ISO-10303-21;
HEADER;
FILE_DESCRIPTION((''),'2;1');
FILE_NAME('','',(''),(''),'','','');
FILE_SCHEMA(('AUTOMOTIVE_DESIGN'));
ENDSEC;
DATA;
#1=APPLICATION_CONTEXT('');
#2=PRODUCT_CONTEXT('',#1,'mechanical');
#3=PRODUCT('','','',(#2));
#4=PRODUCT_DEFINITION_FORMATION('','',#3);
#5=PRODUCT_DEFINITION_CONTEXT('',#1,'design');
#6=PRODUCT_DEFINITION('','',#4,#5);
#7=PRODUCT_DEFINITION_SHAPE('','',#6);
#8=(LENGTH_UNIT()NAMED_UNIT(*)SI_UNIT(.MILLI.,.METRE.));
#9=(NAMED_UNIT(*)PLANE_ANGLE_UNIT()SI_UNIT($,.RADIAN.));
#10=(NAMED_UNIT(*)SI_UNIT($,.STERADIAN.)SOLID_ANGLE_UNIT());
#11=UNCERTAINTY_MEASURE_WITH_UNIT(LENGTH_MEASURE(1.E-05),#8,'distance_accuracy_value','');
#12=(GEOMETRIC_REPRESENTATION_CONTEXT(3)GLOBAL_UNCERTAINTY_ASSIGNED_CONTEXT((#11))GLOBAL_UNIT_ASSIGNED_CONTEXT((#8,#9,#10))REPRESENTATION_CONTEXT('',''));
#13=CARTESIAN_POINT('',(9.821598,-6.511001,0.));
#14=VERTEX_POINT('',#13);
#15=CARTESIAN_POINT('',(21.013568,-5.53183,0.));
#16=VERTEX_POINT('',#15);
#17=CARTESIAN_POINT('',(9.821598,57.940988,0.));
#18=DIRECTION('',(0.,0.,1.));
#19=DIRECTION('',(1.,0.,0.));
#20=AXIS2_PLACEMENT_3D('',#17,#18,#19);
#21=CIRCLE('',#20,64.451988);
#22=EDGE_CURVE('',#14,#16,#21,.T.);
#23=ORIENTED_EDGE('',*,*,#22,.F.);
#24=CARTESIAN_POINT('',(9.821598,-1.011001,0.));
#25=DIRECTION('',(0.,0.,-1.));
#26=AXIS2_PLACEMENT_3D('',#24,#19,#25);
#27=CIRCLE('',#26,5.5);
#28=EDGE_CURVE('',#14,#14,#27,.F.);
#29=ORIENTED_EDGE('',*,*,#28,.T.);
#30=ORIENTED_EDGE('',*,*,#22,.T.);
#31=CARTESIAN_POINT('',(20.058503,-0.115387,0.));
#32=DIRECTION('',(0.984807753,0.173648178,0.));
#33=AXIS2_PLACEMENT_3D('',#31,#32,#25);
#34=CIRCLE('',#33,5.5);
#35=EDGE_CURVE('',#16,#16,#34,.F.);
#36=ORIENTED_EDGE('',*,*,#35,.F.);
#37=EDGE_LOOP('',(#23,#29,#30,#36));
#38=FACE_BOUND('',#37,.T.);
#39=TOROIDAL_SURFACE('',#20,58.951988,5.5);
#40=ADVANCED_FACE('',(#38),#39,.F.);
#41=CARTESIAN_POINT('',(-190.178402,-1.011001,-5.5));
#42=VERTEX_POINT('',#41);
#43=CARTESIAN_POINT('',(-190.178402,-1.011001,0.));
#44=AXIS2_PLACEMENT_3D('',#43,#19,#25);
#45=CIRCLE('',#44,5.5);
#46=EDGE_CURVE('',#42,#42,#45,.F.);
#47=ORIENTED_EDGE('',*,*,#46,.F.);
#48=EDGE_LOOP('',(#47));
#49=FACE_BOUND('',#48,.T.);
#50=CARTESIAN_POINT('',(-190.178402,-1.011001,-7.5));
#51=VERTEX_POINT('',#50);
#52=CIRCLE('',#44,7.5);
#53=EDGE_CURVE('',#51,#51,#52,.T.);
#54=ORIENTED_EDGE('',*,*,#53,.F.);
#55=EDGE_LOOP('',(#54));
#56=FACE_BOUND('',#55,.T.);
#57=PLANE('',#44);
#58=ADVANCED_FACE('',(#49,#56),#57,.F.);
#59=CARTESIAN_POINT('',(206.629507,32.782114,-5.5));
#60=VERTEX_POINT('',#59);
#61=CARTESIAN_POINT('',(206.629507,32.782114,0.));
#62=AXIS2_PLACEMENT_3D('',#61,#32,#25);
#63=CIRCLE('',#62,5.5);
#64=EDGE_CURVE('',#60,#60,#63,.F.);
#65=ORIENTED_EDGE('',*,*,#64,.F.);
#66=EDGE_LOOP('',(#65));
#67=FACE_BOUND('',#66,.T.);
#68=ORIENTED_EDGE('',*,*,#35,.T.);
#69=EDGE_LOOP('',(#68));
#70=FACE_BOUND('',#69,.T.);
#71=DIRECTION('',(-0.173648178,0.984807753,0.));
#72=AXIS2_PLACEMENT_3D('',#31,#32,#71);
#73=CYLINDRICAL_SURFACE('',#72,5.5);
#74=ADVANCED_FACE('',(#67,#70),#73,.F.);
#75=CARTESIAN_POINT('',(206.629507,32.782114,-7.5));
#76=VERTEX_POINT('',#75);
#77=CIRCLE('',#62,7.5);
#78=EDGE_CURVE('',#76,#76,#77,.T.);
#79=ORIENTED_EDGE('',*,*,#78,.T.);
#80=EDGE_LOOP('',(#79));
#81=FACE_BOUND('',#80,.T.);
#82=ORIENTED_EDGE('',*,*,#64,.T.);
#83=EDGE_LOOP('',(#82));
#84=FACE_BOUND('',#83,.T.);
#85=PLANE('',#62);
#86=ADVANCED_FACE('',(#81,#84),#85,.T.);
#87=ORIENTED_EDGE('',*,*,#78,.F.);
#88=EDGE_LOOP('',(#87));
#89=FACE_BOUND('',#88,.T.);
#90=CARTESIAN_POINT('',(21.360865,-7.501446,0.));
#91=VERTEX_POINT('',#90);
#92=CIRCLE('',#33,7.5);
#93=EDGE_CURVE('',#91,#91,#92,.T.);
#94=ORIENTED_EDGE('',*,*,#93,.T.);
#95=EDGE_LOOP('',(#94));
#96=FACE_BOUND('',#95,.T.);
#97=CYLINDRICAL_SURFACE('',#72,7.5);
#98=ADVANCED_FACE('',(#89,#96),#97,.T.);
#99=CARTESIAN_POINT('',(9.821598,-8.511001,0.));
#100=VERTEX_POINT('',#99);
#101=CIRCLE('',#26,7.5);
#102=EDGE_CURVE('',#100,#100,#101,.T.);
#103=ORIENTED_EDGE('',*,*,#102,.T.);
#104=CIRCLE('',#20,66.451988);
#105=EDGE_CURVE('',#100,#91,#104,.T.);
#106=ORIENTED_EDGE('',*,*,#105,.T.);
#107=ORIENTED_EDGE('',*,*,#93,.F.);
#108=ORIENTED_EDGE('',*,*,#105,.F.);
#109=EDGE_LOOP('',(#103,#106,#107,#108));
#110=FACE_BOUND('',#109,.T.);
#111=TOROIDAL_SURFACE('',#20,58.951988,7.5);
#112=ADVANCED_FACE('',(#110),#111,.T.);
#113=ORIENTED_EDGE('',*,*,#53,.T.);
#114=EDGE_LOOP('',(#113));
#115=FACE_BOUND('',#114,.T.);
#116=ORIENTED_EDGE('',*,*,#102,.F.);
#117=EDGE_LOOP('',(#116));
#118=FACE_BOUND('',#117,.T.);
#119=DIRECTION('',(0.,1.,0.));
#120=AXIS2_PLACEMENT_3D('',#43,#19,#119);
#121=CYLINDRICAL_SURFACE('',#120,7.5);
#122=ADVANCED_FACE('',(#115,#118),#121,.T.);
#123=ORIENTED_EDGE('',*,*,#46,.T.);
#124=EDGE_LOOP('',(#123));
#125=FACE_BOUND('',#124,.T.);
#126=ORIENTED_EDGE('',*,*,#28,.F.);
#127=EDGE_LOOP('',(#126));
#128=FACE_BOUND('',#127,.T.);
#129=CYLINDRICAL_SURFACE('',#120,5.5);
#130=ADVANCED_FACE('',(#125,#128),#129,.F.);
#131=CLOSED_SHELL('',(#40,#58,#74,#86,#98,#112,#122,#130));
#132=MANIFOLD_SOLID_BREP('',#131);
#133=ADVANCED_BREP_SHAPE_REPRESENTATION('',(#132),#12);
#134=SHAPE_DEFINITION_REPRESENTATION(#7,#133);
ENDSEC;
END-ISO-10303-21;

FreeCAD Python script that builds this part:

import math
import FreeCAD as App
import Part
import Sketcher
from FreeCAD import Vector
Q = App.Units.Quantity

doc = App.newDocument("Part")
body = doc.addObject("PartDesign::Body", "Body")

# Sketch on YZ plane
sketch1 = body.newObject("Sketcher::SketchObject", "Sketch")
sketch1.AttachmentSupport = (doc.getObject("YZ_Plane"), [""])
sketch1.MapMode = "FlatFace"
sketch1.AttachmentOffset = App.Placement(Vector(0, 0, -190.178402), App.Rotation())
sketch1.addGeometry([
    Part.Circle(Vector(-1, 0, 0), Vector(0, 0, 1), 8),
    Part.Circle(Vector(-1, 0, 0), Vector(0, 0, 1), 6),
], False)
sketch1.addConstraint([
    Sketcher.Constraint("Coincident", 1, 3, 0, 3),
    Sketcher.Constraint("PointOnObject", 0, 3, -1),
    Sketcher.Constraint("Diameter", 0, 15.0),
    Sketcher.Constraint("Diameter", 1, 11.0),
    Sketcher.Constraint("DistanceX", 0, 3, -1, 1, 1.011001),
])

# Sketch on XY plane
sketch2 = body.newObject("Sketcher::SketchObject", "Sketch001")
sketch2.AttachmentSupport = (doc.getObject("XY_Plane"), [""])
sketch2.MapMode = "FlatFace"
sketch2.addGeometry([
    Part.LineSegment(Vector(-190, -3, 0), Vector(10, -3, 0)),
    Part.ArcOfCircle(Part.Circle(Vector(10, 58, 0), Vector(0, 0, 1), 60), math.radians(-90), math.radians(-80)),
    Part.LineSegment(Vector(20, -2, 0), Vector(207, 31, 0)),
], False)
sketch2.addConstraint([
    Sketcher.Constraint("Tangent", 0, 2, 1, 1),
    Sketcher.Constraint("Tangent", 1, 2, 2, 1),
    Sketcher.Constraint("Horizontal", 0),
    Sketcher.Constraint("DistanceX", 0, 1, 0, 2, 200.0),
    Sketcher.Constraint("Angle", 2, Q("10 deg")),
    Sketcher.Constraint("Radius", 1, 60.451847),
    Sketcher.Constraint("DistanceY", 1, 2, 2, 2, 32.897502),
    Sketcher.Constraint("DistanceY", 0, 1, -1, 1, 2.510859),
    Sketcher.Constraint("DistanceX", -1, 1, 1, 2, 20.318951),
])
doc.recompute()

additivepipe = body.newObject("PartDesign::AdditivePipe", "AdditivePipe")
additivepipe.Profile = sketch1
additivepipe.Spine = (sketch2, ["Edge1", "Edge2", "Edge3"])

doc.recompute()
